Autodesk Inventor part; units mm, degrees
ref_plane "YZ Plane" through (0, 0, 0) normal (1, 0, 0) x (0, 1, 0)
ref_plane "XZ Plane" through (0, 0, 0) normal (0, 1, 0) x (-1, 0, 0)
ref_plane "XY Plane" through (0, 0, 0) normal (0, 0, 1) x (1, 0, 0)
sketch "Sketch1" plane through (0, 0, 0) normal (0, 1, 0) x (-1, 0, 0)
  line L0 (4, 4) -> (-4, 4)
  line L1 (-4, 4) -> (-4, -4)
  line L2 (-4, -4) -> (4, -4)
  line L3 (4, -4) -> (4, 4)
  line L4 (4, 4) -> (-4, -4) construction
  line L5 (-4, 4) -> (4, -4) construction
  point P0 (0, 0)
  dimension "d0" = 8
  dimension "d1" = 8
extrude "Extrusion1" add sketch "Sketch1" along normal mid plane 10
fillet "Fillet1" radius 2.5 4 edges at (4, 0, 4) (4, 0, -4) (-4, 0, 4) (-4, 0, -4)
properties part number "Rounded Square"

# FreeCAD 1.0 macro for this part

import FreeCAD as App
import Part
import Sketcher


def edges_at(feature, points):
    """Names of the edges that pass closest to the given points."""
    edges = feature.Shape.Edges
    near = lambda p: min(range(len(edges)), key=lambda i: edges[i].distToShape(Part.Vertex(*p))[0])
    return sorted({f"Edge{near(p) + 1}" for p in points})

doc = App.newDocument("Part")
body = doc.addObject("PartDesign::Body", "Body")

# Sketch on XZ plane
sketch1 = doc.addObject("Sketcher::SketchObject", "Sketch")
body.addObject(sketch1)
sketch1.AttachmentSupport = (doc.XZ_Plane, [""])
sketch1.MapMode = "FlatFace"
sketch1.addGeometry([
    Part.LineSegment(App.Vector(-4, -4, 0), App.Vector(-4, 4, 0)),
    Part.LineSegment(App.Vector(-4, 4, 0), App.Vector(4, 4, 0)),
    Part.LineSegment(App.Vector(4, 4, 0), App.Vector(4, -4, 0)),
    Part.LineSegment(App.Vector(4, -4, 0), App.Vector(-4, -4, 0)),
], False)
sketch1.addConstraint([
    Sketcher.Constraint("Coincident", 0, 2, 1, 1),
    Sketcher.Constraint("Coincident", 1, 2, 2, 1),
    Sketcher.Constraint("Coincident", 2, 2, 3, 1),
    Sketcher.Constraint("Coincident", 3, 2, 0, 1),
    Sketcher.Constraint("Vertical", 0),
    Sketcher.Constraint("Horizontal", 1),
    Sketcher.Constraint("Vertical", 2),
    Sketcher.Constraint("Horizontal", 3),
    Sketcher.Constraint("Symmetric", 0, 2, 2, 2, -1, 1),
    Sketcher.Constraint("Equal", 3, 0),
    Sketcher.Constraint("DistanceX", 1, 1, 1, 2, 8.0),
])
pad1 = doc.addObject("PartDesign::Pad", "Pad")
body.addObject(pad1)
pad1.Profile = sketch1
pad1.Length = 10
pad1.Midplane = True
doc.recompute()

fillet = doc.addObject("PartDesign::Fillet", "Fillet")
body.addObject(fillet)
fillet.Base = (pad1, edges_at(pad1, [
    (4, 0, 4),
    (4, 0, -4),
    (-4, 0, 4),
    (-4, 0, -4),
]))
fillet.Radius = 2.5

doc.recompute()
